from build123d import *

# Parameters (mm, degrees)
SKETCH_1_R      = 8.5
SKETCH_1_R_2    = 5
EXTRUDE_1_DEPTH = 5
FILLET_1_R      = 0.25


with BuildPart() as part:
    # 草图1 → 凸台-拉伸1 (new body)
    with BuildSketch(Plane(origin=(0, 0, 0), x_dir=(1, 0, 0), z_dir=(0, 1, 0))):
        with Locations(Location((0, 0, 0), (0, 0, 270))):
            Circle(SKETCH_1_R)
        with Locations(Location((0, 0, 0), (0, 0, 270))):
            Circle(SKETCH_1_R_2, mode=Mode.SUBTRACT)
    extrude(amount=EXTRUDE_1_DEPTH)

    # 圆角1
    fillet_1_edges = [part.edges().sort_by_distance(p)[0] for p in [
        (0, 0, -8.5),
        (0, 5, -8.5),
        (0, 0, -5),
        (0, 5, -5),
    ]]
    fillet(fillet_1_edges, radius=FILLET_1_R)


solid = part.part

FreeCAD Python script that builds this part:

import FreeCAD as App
import Part
import Sketcher
Q = App.Units.Quantity


def edges_at(feature, points):
    """Names of the edges that pass closest to the given points."""
    edges = feature.Shape.Edges
    near = lambda p: min(range(len(edges)), key=lambda i: edges[i].distToShape(Part.Vertex(*p))[0])
    return sorted({f"Edge{near(p) + 1}" for p in points})

doc = App.newDocument("Part")
body = doc.addObject("PartDesign::Body", "Body")

# Sketch on XZ plane
sketch1 = body.newObject("Sketcher::SketchObject", "Sketch")
sketch1.AttachmentSupport = (doc.getObject("XZ_Plane"), [""])
sketch1.MapMode = "FlatFace"
sketch1.addGeometry(Part.Circle(App.Vector(0, 0, 0), App.Vector(0, 0, 1), 8.5), False)
sketch1.addGeometry(Part.Circle(App.Vector(0, 0, 0), App.Vector(0, 0, 1), 5), False)
sketch1.addConstraint(Sketcher.Constraint("Coincident", 0, 3, -1, 1))
sketch1.addConstraint(Sketcher.Constraint("Coincident", 1, 3, -1, 1))
sketch1.addConstraint(Sketcher.Constraint("Diameter", 0, Q("17 mm")))
sketch1.addConstraint(Sketcher.Constraint("Diameter", 1, Q("10 mm")))
pad1 = body.newObject("PartDesign::Pad", "Pad")
pad1.Profile = sketch1
pad1.Length = 5
pad1.Reversed = True
doc.recompute()

fillet = body.newObject("PartDesign::Fillet", "Fillet")
fillet.Base = (pad1, edges_at(pad1, [
    (0, 0, -8.5),
    (0, 5, -8.5),
    (0, 0, -5),
    (0, 5, -5),
]))
fillet.Radius = 0.25

doc.recompute()
